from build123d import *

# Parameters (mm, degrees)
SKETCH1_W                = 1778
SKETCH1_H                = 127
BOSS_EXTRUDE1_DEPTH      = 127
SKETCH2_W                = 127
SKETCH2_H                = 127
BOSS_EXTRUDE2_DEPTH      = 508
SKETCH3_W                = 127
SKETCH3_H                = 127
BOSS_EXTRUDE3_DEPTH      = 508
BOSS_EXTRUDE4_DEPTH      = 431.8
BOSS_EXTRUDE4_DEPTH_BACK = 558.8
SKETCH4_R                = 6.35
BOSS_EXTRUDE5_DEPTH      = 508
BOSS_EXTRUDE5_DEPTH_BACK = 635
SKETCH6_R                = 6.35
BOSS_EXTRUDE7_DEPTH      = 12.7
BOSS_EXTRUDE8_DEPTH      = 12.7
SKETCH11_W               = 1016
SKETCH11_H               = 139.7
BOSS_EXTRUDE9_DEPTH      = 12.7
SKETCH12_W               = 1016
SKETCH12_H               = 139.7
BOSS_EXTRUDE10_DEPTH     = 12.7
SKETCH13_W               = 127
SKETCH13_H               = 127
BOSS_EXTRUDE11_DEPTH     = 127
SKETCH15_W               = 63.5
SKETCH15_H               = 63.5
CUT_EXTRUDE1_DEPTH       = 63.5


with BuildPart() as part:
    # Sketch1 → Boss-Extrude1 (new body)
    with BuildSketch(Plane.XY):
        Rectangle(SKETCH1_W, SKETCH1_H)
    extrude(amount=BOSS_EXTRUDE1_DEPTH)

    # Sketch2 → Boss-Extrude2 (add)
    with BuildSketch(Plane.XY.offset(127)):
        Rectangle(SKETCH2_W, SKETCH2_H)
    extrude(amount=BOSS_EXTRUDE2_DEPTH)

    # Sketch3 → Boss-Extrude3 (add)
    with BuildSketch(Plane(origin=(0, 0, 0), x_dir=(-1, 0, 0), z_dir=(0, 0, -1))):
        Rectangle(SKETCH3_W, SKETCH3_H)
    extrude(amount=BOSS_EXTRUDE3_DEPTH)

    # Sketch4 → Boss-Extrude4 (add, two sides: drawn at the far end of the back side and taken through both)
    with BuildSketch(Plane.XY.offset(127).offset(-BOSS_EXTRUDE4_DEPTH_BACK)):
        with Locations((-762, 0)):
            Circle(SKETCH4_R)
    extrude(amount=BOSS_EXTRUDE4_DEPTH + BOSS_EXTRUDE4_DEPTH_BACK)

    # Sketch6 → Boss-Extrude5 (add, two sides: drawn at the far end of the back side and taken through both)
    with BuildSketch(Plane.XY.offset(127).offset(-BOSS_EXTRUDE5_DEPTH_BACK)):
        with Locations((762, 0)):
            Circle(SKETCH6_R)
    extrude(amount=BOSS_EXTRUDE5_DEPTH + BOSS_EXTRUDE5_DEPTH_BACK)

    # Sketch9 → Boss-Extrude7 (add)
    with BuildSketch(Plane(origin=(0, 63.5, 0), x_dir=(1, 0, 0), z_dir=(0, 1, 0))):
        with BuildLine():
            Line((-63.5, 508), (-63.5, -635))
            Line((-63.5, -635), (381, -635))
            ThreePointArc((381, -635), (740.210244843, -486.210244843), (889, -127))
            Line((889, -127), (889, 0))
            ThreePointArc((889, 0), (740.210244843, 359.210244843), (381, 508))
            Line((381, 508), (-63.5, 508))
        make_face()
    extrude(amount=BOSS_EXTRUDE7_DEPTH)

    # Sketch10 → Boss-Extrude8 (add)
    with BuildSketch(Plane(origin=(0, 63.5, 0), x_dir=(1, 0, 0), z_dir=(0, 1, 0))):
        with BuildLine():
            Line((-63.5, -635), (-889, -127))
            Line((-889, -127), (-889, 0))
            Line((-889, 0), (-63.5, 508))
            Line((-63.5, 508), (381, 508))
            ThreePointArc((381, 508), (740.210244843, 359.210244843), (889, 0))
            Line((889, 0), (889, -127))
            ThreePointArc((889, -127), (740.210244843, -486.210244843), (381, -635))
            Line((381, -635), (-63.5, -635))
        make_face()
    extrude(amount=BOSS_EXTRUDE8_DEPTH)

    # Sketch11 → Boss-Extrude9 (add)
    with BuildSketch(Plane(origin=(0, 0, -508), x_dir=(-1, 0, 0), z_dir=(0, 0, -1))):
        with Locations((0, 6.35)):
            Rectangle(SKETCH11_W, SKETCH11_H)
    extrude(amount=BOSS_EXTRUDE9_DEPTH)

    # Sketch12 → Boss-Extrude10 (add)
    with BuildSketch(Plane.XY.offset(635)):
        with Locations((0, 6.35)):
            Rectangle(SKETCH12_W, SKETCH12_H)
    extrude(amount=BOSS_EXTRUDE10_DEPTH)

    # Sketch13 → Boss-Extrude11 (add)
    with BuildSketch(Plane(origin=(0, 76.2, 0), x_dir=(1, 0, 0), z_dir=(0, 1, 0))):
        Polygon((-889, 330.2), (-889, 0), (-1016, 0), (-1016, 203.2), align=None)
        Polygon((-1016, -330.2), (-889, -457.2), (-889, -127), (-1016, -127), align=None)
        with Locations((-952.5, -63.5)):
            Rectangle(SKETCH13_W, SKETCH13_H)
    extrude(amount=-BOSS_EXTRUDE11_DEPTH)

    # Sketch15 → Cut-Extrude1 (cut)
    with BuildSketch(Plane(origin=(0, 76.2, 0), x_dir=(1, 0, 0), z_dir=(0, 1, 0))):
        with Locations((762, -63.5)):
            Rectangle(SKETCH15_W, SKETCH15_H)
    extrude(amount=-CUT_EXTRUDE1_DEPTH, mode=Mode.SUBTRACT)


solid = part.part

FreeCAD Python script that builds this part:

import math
import FreeCAD as App
import Part
import Sketcher
from FreeCAD import Vector
Q = App.Units.Quantity

doc = App.newDocument("Part")
body = doc.addObject("PartDesign::Body", "Body")

# Sketch on XY plane
sketch1 = body.newObject("Sketcher::SketchObject", "Sketch")
sketch1.AttachmentSupport = (doc.getObject("XY_Plane"), [""])
sketch1.MapMode = "FlatFace"
sketch1.addGeometry(Part.LineSegment(Vector(-889, 64, 0), Vector(-889, -64, 0)), False)
sketch1.addGeometry(Part.LineSegment(Vector(-889, -64, 0), Vector(889, -64, 0)), False)
sketch1.addGeometry(Part.LineSegment(Vector(889, -64, 0), Vector(889, 64, 0)), False)
sketch1.addGeometry(Part.LineSegment(Vector(889, 64, 0), Vector(-889, 64, 0)), False)
sketch1.addConstraint(Sketcher.Constraint("Coincident", 0, 2, 1, 1))
sketch1.addConstraint(Sketcher.Constraint("Coincident", 1, 2, 2, 1))
sketch1.addConstraint(Sketcher.Constraint("Coincident", 2, 2, 3, 1))
sketch1.addConstraint(Sketcher.Constraint("Coincident", 3, 2, 0, 1))
sketch1.addConstraint(Sketcher.Constraint("Vertical", 0))
sketch1.addConstraint(Sketcher.Constraint("Horizontal", 1))
sketch1.addConstraint(Sketcher.Constraint("Vertical", 2))
sketch1.addConstraint(Sketcher.Constraint("Horizontal", 3))
sketch1.addConstraint(Sketcher.Constraint("Symmetric", 0, 2, 2, 2, -1, 1))
sketch1.addConstraint(Sketcher.Constraint("DistanceX", 1, 1, 1, 2, Q("70 in")))
sketch1.addConstraint(Sketcher.Constraint("DistanceY", 0, 2, 0, 1, Q("5 in")))
pad1 = body.newObject("PartDesign::Pad", "Pad")
pad1.Profile = sketch1
pad1.Length = Q("5 in")

# Sketch on XY plane
sketch2 = body.newObject("Sketcher::SketchObject", "Sketch001")
sketch2.AttachmentSupport = (doc.getObject("XY_Plane"), [""])
sketch2.MapMode = "FlatFace"
sketch2.AttachmentOffset = App.Placement(Vector(0, 0, 5 * 25.4), App.Rotation())
sketch2.addGeometry(Part.LineSegment(Vector(-64, 64, 0), Vector(-64, -64, 0)), False)
sketch2.addGeometry(Part.LineSegment(Vector(-64, -64, 0), Vector(64, -64, 0)), False)
sketch2.addGeometry(Part.LineSegment(Vector(64, -64, 0), Vector(64, 64, 0)), False)
sketch2.addGeometry(Part.LineSegment(Vector(64, 64, 0), Vector(-64, 64, 0)), False)
sketch2.addConstraint(Sketcher.Constraint("Coincident", 0, 2, 1, 1))
sketch2.addConstraint(Sketcher.Constraint("Coincident", 1, 2, 2, 1))
sketch2.addConstraint(Sketcher.Constraint("Coincident", 2, 2, 3, 1))
sketch2.addConstraint(Sketcher.Constraint("Coincident", 3, 2, 0, 1))
sketch2.addConstraint(Sketcher.Constraint("Vertical", 0))
sketch2.addConstraint(Sketcher.Constraint("Horizontal", 1))
sketch2.addConstraint(Sketcher.Constraint("Vertical", 2))
sketch2.addConstraint(Sketcher.Constraint("Horizontal", 3))
sketch2.addConstraint(Sketcher.Constraint("Symmetric", 0, 2, 2, 2, -1, 1))
sketch2.addConstraint(Sketcher.Constraint("Equal", 3, 0))
sketch2.addConstraint(Sketcher.Constraint("DistanceX", 1, 1, 1, 2, Q("5 in")))
pad2 = body.newObject("PartDesign::Pad", "Pad001")
pad2.Profile = sketch2
pad2.Length = Q("20 in")

# Sketch on XY plane
sketch3 = body.newObject("Sketcher::SketchObject", "Sketch002")
sketch3.AttachmentSupport = (doc.getObject("XY_Plane"), [""])
sketch3.MapMode = "FlatFace"
sketch3.addGeometry(Part.LineSegment(Vector(64, 64, 0), Vector(64, -64, 0)), False)
sketch3.addGeometry(Part.LineSegment(Vector(64, -64, 0), Vector(-64, -64, 0)), False)
sketch3.addGeometry(Part.LineSegment(Vector(-64, -64, 0), Vector(-64, 64, 0)), False)
sketch3.addGeometry(Part.LineSegment(Vector(-64, 64, 0), Vector(64, 64, 0)), False)
sketch3.addConstraint(Sketcher.Constraint("Coincident", 0, 2, 1, 1))
sketch3.addConstraint(Sketcher.Constraint("Coincident", 1, 2, 2, 1))
sketch3.addConstraint(Sketcher.Constraint("Coincident", 2, 2, 3, 1))
sketch3.addConstraint(Sketcher.Constraint("Coincident", 3, 2, 0, 1))
sketch3.addConstraint(Sketcher.Constraint("Vertical", 0))
sketch3.addConstraint(Sketcher.Constraint("Horizontal", 1))
sketch3.addConstraint(Sketcher.Constraint("Vertical", 2))
sketch3.addConstraint(Sketcher.Constraint("Horizontal", 3))
sketch3.addConstraint(Sketcher.Constraint("Symmetric", 0, 2, 2, 2, -1, 1))
sketch3.addConstraint(Sketcher.Constraint("Equal", 3, 0))
sketch3.addConstraint(Sketcher.Constraint("DistanceX", 1, 2, 1, 1, Q("5 in")))
pad3 = body.newObject("PartDesign::Pad", "Pad002")
pad3.Profile = sketch3
pad3.Length = Q("20 in")
pad3.Reversed = True

# Sketch on XY plane
sketch4 = body.newObject("Sketcher::SketchObject", "Sketch003")
sketch4.AttachmentSupport = (doc.getObject("XY_Plane"), [""])
sketch4.MapMode = "FlatFace"
sketch4.AttachmentOffset = App.Placement(Vector(0, 0, 5 * 25.4), App.Rotation())
sketch4.addGeometry(Part.Circle(Vector(-762, 0, 0), Vector(0, 0, 1), 6), False)
sketch4.addConstraint(Sketcher.Constraint("PointOnObject", 0, 3, -1))
sketch4.addConstraint(Sketcher.Constraint("Diameter", 0, Q("0.5 in")))
sketch4.addConstraint(Sketcher.Constraint("DistanceX", 0, 3, -1, 1, Q("30 in")))
pad4 = body.newObject("PartDesign::Pad", "Pad003")
pad4.Profile = sketch4
pad4.Type = "TwoLengths"
pad4.Length = Q("17 in")
pad4.Length2 = Q("22 in")

# Sketch on XY plane
sketch5 = body.newObject("Sketcher::SketchObject", "Sketch004")
sketch5.AttachmentSupport = (doc.getObject("XY_Plane"), [""])
sketch5.MapMode = "FlatFace"
sketch5.AttachmentOffset = App.Placement(Vector(0, 0, 5 * 25.4), App.Rotation())
sketch5.addGeometry(Part.Circle(Vector(762, 0, 0), Vector(0, 0, 1), 6), False)
sketch5.addConstraint(Sketcher.Constraint("PointOnObject", 0, 3, -1))
sketch5.addConstraint(Sketcher.Constraint("Diameter", 0, Q("0.5 in")))
sketch5.addConstraint(Sketcher.Constraint("DistanceX", -1, 1, 0, 3, Q("30 in")))
pad5 = body.newObject("PartDesign::Pad", "Pad004")
pad5.Profile = sketch5
pad5.Type = "TwoLengths"
pad5.Length = Q("20 in")
pad5.Length2 = Q("25 in")

# Sketch on XZ plane
sketch6 = body.newObject("Sketcher::SketchObject", "Sketch005")
sketch6.AttachmentSupport = (doc.getObject("XZ_Plane"), [""])
sketch6.MapMode = "FlatFace"
sketch6.AttachmentOffset = App.Placement(Vector(0, 0, -2.5 * 25.4), App.Rotation())
sketch6.addGeometry(Part.LineSegment(Vector(-64, -508, 0), Vector(-64, 635, 0)), False)
sketch6.addGeometry(Part.LineSegment(Vector(-64, 635, 0), Vector(381, 635, 0)), False)
sketch6.addGeometry(Part.ArcOfCircle(Part.Circle(Vector(381, 127, 0), Vector(0, 0, 1), 508), math.radians(0), math.radians(90)), False)
sketch6.addGeometry(Part.LineSegment(Vector(889, 127, 0), Vector(889, 0, 0)), False)
sketch6.addGeometry(Part.ArcOfCircle(Part.Circle(Vector(381, 0, 0), Vector(0, 0, 1), 508), math.radians(-90), math.radians(0)), False)
sketch6.addGeometry(Part.LineSegment(Vector(381, -508, 0), Vector(-64, -508, 0)), False)
sketch6.addConstraint(Sketcher.Constraint("Coincident", 0, 2, 1, 1))
sketch6.addConstraint(Sketcher.Constraint("Tangent", 1, 2, 2, 2))
sketch6.addConstraint(Sketcher.Constraint("Tangent", 2, 1, 3, 1))
sketch6.addConstraint(Sketcher.Constraint("Tangent", 3, 2, 4, 2))
sketch6.addConstraint(Sketcher.Constraint("Tangent", 4, 1, 5, 1))
sketch6.addConstraint(Sketcher.Constraint("Coincident", 5, 2, 0, 1))
sketch6.addConstraint(Sketcher.Constraint("Vertical", 0))
sketch6.addConstraint(Sketcher.Constraint("Horizontal", 1))
sketch6.addConstraint(Sketcher.Constraint("Vertical", 3))
sketch6.addConstraint(Sketcher.Constraint("Horizontal", 5))
sketch6.addConstraint(Sketcher.Constraint("Equal", 2, 4))
sketch6.addConstraint(Sketcher.Constraint("PointOnObject", 4, 3, -1))
sketch6.addConstraint(Sketcher.Constraint("Radius", 2, Q("20 in")))
sketch6.addConstraint(Sketcher.Constraint("DistanceY", 0, 1, 0, 2, Q("45 in")))
sketch6.addConstraint(Sketcher.Constraint("DistanceX", 1, 1, 1, 2, Q("17.5 in")))
sketch6.addConstraint(Sketcher.Constraint("DistanceX", -1, 1, 2, 3, Q("15 in")))
pad6 = body.newObject("PartDesign::Pad", "Pad005")
pad6.Profile = sketch6
pad6.Length = Q("0.5 in")
pad6.Reversed = True

# Sketch on XZ plane
sketch7 = body.newObject("Sketcher::SketchObject", "Sketch006")
sketch7.AttachmentSupport = (doc.getObject("XZ_Plane"), [""])
sketch7.MapMode = "FlatFace"
sketch7.AttachmentOffset = App.Placement(Vector(0, 0, -2.5 * 25.4), App.Rotation())
sketch7.addGeometry(Part.LineSegment(Vector(-889, 127, 0), Vector(-64, 635, 0)), False)
sketch7.addGeometry(Part.LineSegment(Vector(-64, 635, 0), Vector(381, 635, 0)), False)
sketch7.addGeometry(Part.ArcOfCircle(Part.Circle(Vector(381, 127, 0), Vector(0, 0, 1), 508), math.radians(0), math.radians(90)), False)
sketch7.addGeometry(Part.LineSegment(Vector(889, 127, 0), Vector(889, 0, 0)), False)
sketch7.addGeometry(Part.ArcOfCircle(Part.Circle(Vector(381, 0, 0), Vector(0, 0, 1), 508), math.radians(-90), math.radians(0)), False)
sketch7.addGeometry(Part.LineSegment(Vector(381, -508, 0), Vector(-64, -508, 0)), False)
sketch7.addGeometry(Part.LineSegment(Vector(-64, -508, 0), Vector(-889, 0, 0)), False)
sketch7.addGeometry(Part.LineSegment(Vector(-889, 0, 0), Vector(-889, 127, 0)), False)
sketch7.addConstraint(Sketcher.Constraint("Coincident", 0, 2, 1, 1))
sketch7.addConstraint(Sketcher.Constraint("Tangent", 1, 2, 2, 2))
sketch7.addConstraint(Sketcher.Constraint("Tangent", 2, 1, 3, 1))
sketch7.addConstraint(Sketcher.Constraint("Tangent", 3, 2, 4, 2))
sketch7.addConstraint(Sketcher.Constraint("Tangent", 4, 1, 5, 1))
sketch7.addConstraint(Sketcher.Constraint("Coincident", 5, 2, 6, 1))
sketch7.addConstraint(Sketcher.Constraint("Coincident", 6, 2, 7, 1))
sketch7.addConstraint(Sketcher.Constraint("Coincident", 7, 2, 0, 1))
sketch7.addConstraint(Sketcher.Constraint("Horizontal", 1))
sketch7.addConstraint(Sketcher.Constraint("Vertical", 3))
sketch7.addConstraint(Sketcher.Constraint("Horizontal", 5))
sketch7.addConstraint(Sketcher.Constraint("Vertical", 7))
sketch7.addConstraint(Sketcher.Constraint("Equal", 2, 4))
sketch7.addConstraint(Sketcher.Constraint("Symmetric", 3, 2, 6, 2, -1, 1))
sketch7.addConstraint(Sketcher.Constraint("PointOnObject", 4, 3, -1))
sketch7.addConstraint(Sketcher.Constraint("Vertical", 0, 2, 5, 2))
sketch7.addConstraint(Sketcher.Constraint("Equal", 3, 7))
sketch7.addConstraint(Sketcher.Constraint("Radius", 2, Q("20 in")))
sketch7.addConstraint(Sketcher.Constraint("DistanceY", 3, 2, 3, 1, Q("5 in")))
sketch7.addConstraint(Sketcher.Constraint("DistanceX", 1, 1, 1, 2, Q("17.5 in")))
sketch7.addConstraint(Sketcher.Constraint("DistanceX", -1, 1, 2, 3, Q("15 in")))
pad7 = body.newObject("PartDesign::Pad", "Pad006")
pad7.Profile = sketch7
pad7.Length = Q("0.5 in")
pad7.Reversed = True

# Sketch on XY plane
sketch8 = body.newObject("Sketcher::SketchObject", "Sketch007")
sketch8.AttachmentSupport = (doc.getObject("XY_Plane"), [""])
sketch8.MapMode = "FlatFace"
sketch8.AttachmentOffset = App.Placement(Vector(0, 0, -20 * 25.4), App.Rotation())
sketch8.addGeometry(Part.LineSegment(Vector(508, 76, 0), Vector(508, -64, 0)), False)
sketch8.addGeometry(Part.LineSegment(Vector(508, -64, 0), Vector(-508, -64, 0)), False)
sketch8.addGeometry(Part.LineSegment(Vector(-508, -64, 0), Vector(-508, 76, 0)), False)
sketch8.addGeometry(Part.LineSegment(Vector(-508, 76, 0), Vector(508, 76, 0)), False)
sketch8.addConstraint(Sketcher.Constraint("Coincident", 0, 2, 1, 1))
sketch8.addConstraint(Sketcher.Constraint("Coincident", 1, 2, 2, 1))
sketch8.addConstraint(Sketcher.Constraint("Coincident", 2, 2, 3, 1))
sketch8.addConstraint(Sketcher.Constraint("Coincident", 3, 2, 0, 1))
sketch8.addConstraint(Sketcher.Constraint("Vertical", 0))
sketch8.addConstraint(Sketcher.Constraint("Horizontal", 1))
sketch8.addConstraint(Sketcher.Constraint("Vertical", 2))
sketch8.addConstraint(Sketcher.Constraint("Horizontal", 3))
sketch8.addConstraint(Sketcher.Constraint("DistanceX", 1, 2, 1, 1, Q("40 in")))
sketch8.addConstraint(Sketcher.Constraint("DistanceY", 0, 2, 0, 1, Q("5.5 in")))
sketch8.addConstraint(Sketcher.Constraint("DistanceX", -1, 1, 0, 2, Q("20 in")))
sketch8.addConstraint(Sketcher.Constraint("DistanceY", -1, 1, 2, 2, Q("3 in")))
pad8 = body.newObject("PartDesign::Pad", "Pad007")
pad8.Profile = sketch8
pad8.Length = Q("0.5 in")
pad8.Reversed = True

# Sketch on XY plane
sketch9 = body.newObject("Sketcher::SketchObject", "Sketch008")
sketch9.AttachmentSupport = (doc.getObject("XY_Plane"), [""])
sketch9.MapMode = "FlatFace"
sketch9.AttachmentOffset = App.Placement(Vector(0, 0, 25 * 25.4), App.Rotation())
sketch9.addGeometry(Part.LineSegment(Vector(-508, 76, 0), Vector(-508, -64, 0)), False)
sketch9.addGeometry(Part.LineSegment(Vector(-508, -64, 0), Vector(508, -64, 0)), False)
sketch9.addGeometry(Part.LineSegment(Vector(508, -64, 0), Vector(508, 76, 0)), False)
sketch9.addGeometry(Part.LineSegment(Vector(508, 76, 0), Vector(-508, 76, 0)), False)
sketch9.addConstraint(Sketcher.Constraint("Coincident", 0, 2, 1, 1))
sketch9.addConstraint(Sketcher.Constraint("Coincident", 1, 2, 2, 1))
sketch9.addConstraint(Sketcher.Constraint("Coincident", 2, 2, 3, 1))
sketch9.addConstraint(Sketcher.Constraint("Coincident", 3, 2, 0, 1))
sketch9.addConstraint(Sketcher.Constraint("Vertical", 0))
sketch9.addConstraint(Sketcher.Constraint("Horizontal", 1))
sketch9.addConstraint(Sketcher.Constraint("Vertical", 2))
sketch9.addConstraint(Sketcher.Constraint("Horizontal", 3))
sketch9.addConstraint(Sketcher.Constraint("DistanceX", 1, 1, 1, 2, Q("40 in")))
sketch9.addConstraint(Sketcher.Constraint("DistanceY", 0, 2, 0, 1, Q("5.5 in")))
sketch9.addConstraint(Sketcher.Constraint("DistanceX", 0, 2, -1, 1, Q("20 in")))
sketch9.addConstraint(Sketcher.Constraint("DistanceY", -1, 1, 2, 2, Q("3 in")))
pad9 = body.newObject("PartDesign::Pad", "Pad008")
pad9.Profile = sketch9
pad9.Length = Q("0.5 in")

# Sketch on XZ plane
sketch10 = body.newObject("Sketcher::SketchObject", "Sketch009")
sketch10.AttachmentSupport = (doc.getObject("XZ_Plane"), [""])
sketch10.MapMode = "FlatFace"
sketch10.AttachmentOffset = App.Placement(Vector(0, 0, -3 * 25.4), App.Rotation())
sketch10.addGeometry(Part.LineSegment(Vector(-889, 457, 0), Vector(-889, -330, 0)), False)
sketch10.addGeometry(Part.LineSegment(Vector(-889, -330, 0), Vector(-1016, -203, 0)), False)
sketch10.addGeometry(Part.LineSegment(Vector(-1016, -203, 0), Vector(-1016, 330, 0)), False)
sketch10.addGeometry(Part.LineSegment(Vector(-1016, 330, 0), Vector(-889, 457, 0)), False)
sketch10.addConstraint(Sketcher.Constraint("Coincident", 0, 2, 1, 1))
sketch10.addConstraint(Sketcher.Constraint("Coincident", 1, 2, 2, 1))
sketch10.addConstraint(Sketcher.Constraint("Coincident", 2, 2, 3, 1))
sketch10.addConstraint(Sketcher.Constraint("Coincident", 3, 2, 0, 1))
sketch10.addConstraint(Sketcher.Constraint("Vertical", 0))
sketch10.addConstraint(Sketcher.Constraint("Vertical", 2))
sketch10.addConstraint(Sketcher.Constraint("Perpendicular", 1, 3))
sketch10.addConstraint(Sketcher.Constraint("Equal", 1, 3))
sketch10.addConstraint(Sketcher.Constraint("DistanceY", 0, 2, 0, 1, Q("31 in")))
sketch10.addConstraint(Sketcher.Constraint("DistanceY", 2, 1, 2, 2, Q("21 in")))
sketch10.addConstraint(Sketcher.Constraint("DistanceX", 0, 2, -1, 1, Q("35 in")))
sketch10.addConstraint(Sketcher.Constraint("DistanceY", 0, 2, -1, 1, Q("13 in")))
pad10 = body.newObject("PartDesign::Pad", "Pad009")
pad10.Profile = sketch10
pad10.Length = Q("5 in")

# Sketch on XZ plane
sketch11 = body.newObject("Sketcher::SketchObject", "Sketch010")
sketch11.AttachmentSupport = (doc.getObject("XZ_Plane"), [""])
sketch11.MapMode = "FlatFace"
sketch11.AttachmentOffset = App.Placement(Vector(0, 0, -3 * 25.4), App.Rotation())
sketch11.addGeometry(Part.LineSegment(Vector(730, 32, 0), Vector(730, 95, 0)), False)
sketch11.addGeometry(Part.LineSegment(Vector(730, 95, 0), Vector(794, 95, 0)), False)
sketch11.addGeometry(Part.LineSegment(Vector(794, 95, 0), Vector(794, 32, 0)), False)
sketch11.addGeometry(Part.LineSegment(Vector(794, 32, 0), Vector(730, 32, 0)), False)
sketch11.addConstraint(Sketcher.Constraint("Coincident", 0, 2, 1, 1))
sketch11.addConstraint(Sketcher.Constraint("Coincident", 1, 2, 2, 1))
sketch11.addConstraint(Sketcher.Constraint("Coincident", 2, 2, 3, 1))
sketch11.addConstraint(Sketcher.Constraint("Coincident", 3, 2, 0, 1))
sketch11.addConstraint(Sketcher.Constraint("Vertical", 0))
sketch11.addConstraint(Sketcher.Constraint("Horizontal", 1))
sketch11.addConstraint(Sketcher.Constraint("Vertical", 2))
sketch11.addConstraint(Sketcher.Constraint("Horizontal", 3))
sketch11.addConstraint(Sketcher.Constraint("Equal", 3, 0))
sketch11.addConstraint(Sketcher.Constraint("DistanceX", 1, 1, 1, 2, Q("2.5 in")))
sketch11.addConstraint(Sketcher.Constraint("DistanceX", -1, 1, 0, 2, Q("28.75 in")))
sketch11.addConstraint(Sketcher.Constraint("DistanceY", -1, 1, 0, 2, Q("3.75 in")))
pocket1 = body.newObject("PartDesign::Pocket", "Pocket")
pocket1.Profile = sketch11
pocket1.Length = Q("2.5 in")
pocket1.Reversed = True

doc.recompute()
